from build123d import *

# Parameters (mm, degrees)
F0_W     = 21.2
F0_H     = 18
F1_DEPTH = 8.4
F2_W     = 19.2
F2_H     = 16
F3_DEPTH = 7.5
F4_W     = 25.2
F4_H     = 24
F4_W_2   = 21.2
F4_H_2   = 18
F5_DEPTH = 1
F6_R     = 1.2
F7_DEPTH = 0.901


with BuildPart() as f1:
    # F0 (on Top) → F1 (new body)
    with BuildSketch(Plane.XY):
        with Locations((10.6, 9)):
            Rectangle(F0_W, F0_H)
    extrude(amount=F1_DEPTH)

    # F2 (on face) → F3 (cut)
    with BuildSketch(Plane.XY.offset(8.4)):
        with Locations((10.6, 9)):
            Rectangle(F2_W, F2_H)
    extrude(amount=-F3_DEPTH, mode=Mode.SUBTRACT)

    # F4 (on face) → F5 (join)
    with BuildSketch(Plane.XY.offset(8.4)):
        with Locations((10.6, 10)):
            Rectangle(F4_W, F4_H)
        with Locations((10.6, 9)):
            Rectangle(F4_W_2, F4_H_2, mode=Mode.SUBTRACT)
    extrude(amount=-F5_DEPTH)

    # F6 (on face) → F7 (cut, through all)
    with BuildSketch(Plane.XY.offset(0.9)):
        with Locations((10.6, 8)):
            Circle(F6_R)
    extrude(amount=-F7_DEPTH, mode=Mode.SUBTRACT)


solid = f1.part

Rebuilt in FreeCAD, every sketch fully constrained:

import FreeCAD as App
import Part
import Sketcher

V = App.Vector
Q = App.Units.Quantity


def add_polygon(sketch, points):
    """Adds a closed chain of lines whose ends are joined by coincident constraints."""
    first, n = sketch.GeometryCount, len(points)
    for a, b in zip(points, points[1:] + points[:1]):
        sketch.addGeometry(Part.LineSegment(App.Vector(*a, 0), App.Vector(*b, 0)), False)
    for i in range(n):
        sketch.addConstraint(Sketcher.Constraint("Coincident", first + i, 2, first + (i + 1) % n, 1))

doc = App.newDocument("Part")
body = doc.addObject("PartDesign::Body", "Body")

sketch1 = body.newObject("Sketcher::SketchObject", "Sketch")
sketch1.AttachmentSupport = (doc.getObject("XY_Plane"), [""])
sketch1.MapMode = "FlatFace"
add_polygon(sketch1, [(0, 18), (0, 0), (21, 0), (21, 18)])
sketch1.addConstraint([
    Sketcher.Constraint("Vertical", 0),
    Sketcher.Constraint("Horizontal", 1),
    Sketcher.Constraint("Vertical", 2),
    Sketcher.Constraint("Horizontal", 3),
    Sketcher.Constraint("Coincident", 0, 2, -1, 1),
    Sketcher.Constraint("DistanceY", 0, 2, 0, 1, Q("18 mm")),
    Sketcher.Constraint("DistanceX", 1, 1, 1, 2, Q("21.2 mm")),
])
pad1 = body.newObject("PartDesign::Pad", "Pad")
pad1.Profile = sketch1
pad1.Length = 8.4

sketch2 = body.newObject("Sketcher::SketchObject", "Sketch001")
sketch2.AttachmentSupport = (doc.getObject("XY_Plane"), [""])
sketch2.MapMode = "FlatFace"
sketch2.AttachmentOffset = App.Placement(V(0, 0, 8.4), App.Rotation())
add_polygon(sketch2, [(1, 17), (1, 1), (20, 1), (20, 17)])
sketch2.addConstraint([
    Sketcher.Constraint("Vertical", 0),
    Sketcher.Constraint("Horizontal", 1),
    Sketcher.Constraint("Vertical", 2),
    Sketcher.Constraint("Horizontal", 3),
    Sketcher.Constraint("DistanceY", 0, 2, 0, 1, Q("16 mm")),
    Sketcher.Constraint("DistanceX", 1, 1, 1, 2, Q("19.2 mm")),
    Sketcher.Constraint("DistanceX", -1, 1, 0, 2, Q("1 mm")),
    Sketcher.Constraint("DistanceY", -1, 1, 0, 2, Q("1 mm")),
])
pocket1 = body.newObject("PartDesign::Pocket", "Pocket")
pocket1.Profile = sketch2
pocket1.Length = 7.5

sketch3 = body.newObject("Sketcher::SketchObject", "Sketch002")
sketch3.AttachmentSupport = (doc.getObject("XY_Plane"), [""])
sketch3.MapMode = "FlatFace"
sketch3.AttachmentOffset = App.Placement(V(0, 0, 8.4), App.Rotation())
add_polygon(sketch3, [(-2, 22), (-2, -2), (23, -2), (23, 22)])
add_polygon(sketch3, [(21, 0), (0, 0), (0, 18), (21, 18)])
sketch3.addConstraint([
    Sketcher.Constraint("Vertical", 0),
    Sketcher.Constraint("Horizontal", 1),
    Sketcher.Constraint("Vertical", 2),
    Sketcher.Constraint("Horizontal", 3),
    Sketcher.Constraint("Horizontal", 4),
    Sketcher.Constraint("Vertical", 5),
    Sketcher.Constraint("Horizontal", 6),
    Sketcher.Constraint("Vertical", 7),
    Sketcher.Constraint("Coincident", 4, 2, -1, 1),
    Sketcher.Constraint("DistanceY", 0, 2, 0, 1, Q("24 mm")),
    Sketcher.Constraint("DistanceY", 5, 1, 5, 2, Q("18 mm")),
    Sketcher.Constraint("DistanceX", 1, 1, 1, 2, Q("25.2 mm")),
    Sketcher.Constraint("DistanceX", 4, 2, 4, 1, Q("21.2 mm")),
    Sketcher.Constraint("DistanceX", 0, 2, -1, 1, Q("2 mm")),
    Sketcher.Constraint("DistanceY", 0, 2, -1, 1, Q("2 mm")),
])
pad2 = body.newObject("PartDesign::Pad", "Pad001")
pad2.Profile = sketch3
pad2.Length = 1
pad2.Reversed = True

sketch4 = body.newObject("Sketcher::SketchObject", "Sketch003")
sketch4.AttachmentSupport = (doc.getObject("XY_Plane"), [""])
sketch4.MapMode = "FlatFace"
sketch4.AttachmentOffset = App.Placement(V(0, 0, 0.9), App.Rotation())
sketch4.addGeometry(Part.Circle(V(10.6, 8, 0), V(0, 0, 1), 1.2), False)
sketch4.addConstraint([
    Sketcher.Constraint("Diameter", 0, Q("2.4 mm")),
    Sketcher.Constraint("DistanceY", -1, 1, 0, 3, Q("8 mm")),
    Sketcher.Constraint("DistanceX", -1, 1, 0, 3, Q("10.6 mm")),
])
pocket2 = body.newObject("PartDesign::Pocket", "Pocket001")
pocket2.Profile = sketch4
pocket2.Type = "ThroughAll"

doc.recompute()
